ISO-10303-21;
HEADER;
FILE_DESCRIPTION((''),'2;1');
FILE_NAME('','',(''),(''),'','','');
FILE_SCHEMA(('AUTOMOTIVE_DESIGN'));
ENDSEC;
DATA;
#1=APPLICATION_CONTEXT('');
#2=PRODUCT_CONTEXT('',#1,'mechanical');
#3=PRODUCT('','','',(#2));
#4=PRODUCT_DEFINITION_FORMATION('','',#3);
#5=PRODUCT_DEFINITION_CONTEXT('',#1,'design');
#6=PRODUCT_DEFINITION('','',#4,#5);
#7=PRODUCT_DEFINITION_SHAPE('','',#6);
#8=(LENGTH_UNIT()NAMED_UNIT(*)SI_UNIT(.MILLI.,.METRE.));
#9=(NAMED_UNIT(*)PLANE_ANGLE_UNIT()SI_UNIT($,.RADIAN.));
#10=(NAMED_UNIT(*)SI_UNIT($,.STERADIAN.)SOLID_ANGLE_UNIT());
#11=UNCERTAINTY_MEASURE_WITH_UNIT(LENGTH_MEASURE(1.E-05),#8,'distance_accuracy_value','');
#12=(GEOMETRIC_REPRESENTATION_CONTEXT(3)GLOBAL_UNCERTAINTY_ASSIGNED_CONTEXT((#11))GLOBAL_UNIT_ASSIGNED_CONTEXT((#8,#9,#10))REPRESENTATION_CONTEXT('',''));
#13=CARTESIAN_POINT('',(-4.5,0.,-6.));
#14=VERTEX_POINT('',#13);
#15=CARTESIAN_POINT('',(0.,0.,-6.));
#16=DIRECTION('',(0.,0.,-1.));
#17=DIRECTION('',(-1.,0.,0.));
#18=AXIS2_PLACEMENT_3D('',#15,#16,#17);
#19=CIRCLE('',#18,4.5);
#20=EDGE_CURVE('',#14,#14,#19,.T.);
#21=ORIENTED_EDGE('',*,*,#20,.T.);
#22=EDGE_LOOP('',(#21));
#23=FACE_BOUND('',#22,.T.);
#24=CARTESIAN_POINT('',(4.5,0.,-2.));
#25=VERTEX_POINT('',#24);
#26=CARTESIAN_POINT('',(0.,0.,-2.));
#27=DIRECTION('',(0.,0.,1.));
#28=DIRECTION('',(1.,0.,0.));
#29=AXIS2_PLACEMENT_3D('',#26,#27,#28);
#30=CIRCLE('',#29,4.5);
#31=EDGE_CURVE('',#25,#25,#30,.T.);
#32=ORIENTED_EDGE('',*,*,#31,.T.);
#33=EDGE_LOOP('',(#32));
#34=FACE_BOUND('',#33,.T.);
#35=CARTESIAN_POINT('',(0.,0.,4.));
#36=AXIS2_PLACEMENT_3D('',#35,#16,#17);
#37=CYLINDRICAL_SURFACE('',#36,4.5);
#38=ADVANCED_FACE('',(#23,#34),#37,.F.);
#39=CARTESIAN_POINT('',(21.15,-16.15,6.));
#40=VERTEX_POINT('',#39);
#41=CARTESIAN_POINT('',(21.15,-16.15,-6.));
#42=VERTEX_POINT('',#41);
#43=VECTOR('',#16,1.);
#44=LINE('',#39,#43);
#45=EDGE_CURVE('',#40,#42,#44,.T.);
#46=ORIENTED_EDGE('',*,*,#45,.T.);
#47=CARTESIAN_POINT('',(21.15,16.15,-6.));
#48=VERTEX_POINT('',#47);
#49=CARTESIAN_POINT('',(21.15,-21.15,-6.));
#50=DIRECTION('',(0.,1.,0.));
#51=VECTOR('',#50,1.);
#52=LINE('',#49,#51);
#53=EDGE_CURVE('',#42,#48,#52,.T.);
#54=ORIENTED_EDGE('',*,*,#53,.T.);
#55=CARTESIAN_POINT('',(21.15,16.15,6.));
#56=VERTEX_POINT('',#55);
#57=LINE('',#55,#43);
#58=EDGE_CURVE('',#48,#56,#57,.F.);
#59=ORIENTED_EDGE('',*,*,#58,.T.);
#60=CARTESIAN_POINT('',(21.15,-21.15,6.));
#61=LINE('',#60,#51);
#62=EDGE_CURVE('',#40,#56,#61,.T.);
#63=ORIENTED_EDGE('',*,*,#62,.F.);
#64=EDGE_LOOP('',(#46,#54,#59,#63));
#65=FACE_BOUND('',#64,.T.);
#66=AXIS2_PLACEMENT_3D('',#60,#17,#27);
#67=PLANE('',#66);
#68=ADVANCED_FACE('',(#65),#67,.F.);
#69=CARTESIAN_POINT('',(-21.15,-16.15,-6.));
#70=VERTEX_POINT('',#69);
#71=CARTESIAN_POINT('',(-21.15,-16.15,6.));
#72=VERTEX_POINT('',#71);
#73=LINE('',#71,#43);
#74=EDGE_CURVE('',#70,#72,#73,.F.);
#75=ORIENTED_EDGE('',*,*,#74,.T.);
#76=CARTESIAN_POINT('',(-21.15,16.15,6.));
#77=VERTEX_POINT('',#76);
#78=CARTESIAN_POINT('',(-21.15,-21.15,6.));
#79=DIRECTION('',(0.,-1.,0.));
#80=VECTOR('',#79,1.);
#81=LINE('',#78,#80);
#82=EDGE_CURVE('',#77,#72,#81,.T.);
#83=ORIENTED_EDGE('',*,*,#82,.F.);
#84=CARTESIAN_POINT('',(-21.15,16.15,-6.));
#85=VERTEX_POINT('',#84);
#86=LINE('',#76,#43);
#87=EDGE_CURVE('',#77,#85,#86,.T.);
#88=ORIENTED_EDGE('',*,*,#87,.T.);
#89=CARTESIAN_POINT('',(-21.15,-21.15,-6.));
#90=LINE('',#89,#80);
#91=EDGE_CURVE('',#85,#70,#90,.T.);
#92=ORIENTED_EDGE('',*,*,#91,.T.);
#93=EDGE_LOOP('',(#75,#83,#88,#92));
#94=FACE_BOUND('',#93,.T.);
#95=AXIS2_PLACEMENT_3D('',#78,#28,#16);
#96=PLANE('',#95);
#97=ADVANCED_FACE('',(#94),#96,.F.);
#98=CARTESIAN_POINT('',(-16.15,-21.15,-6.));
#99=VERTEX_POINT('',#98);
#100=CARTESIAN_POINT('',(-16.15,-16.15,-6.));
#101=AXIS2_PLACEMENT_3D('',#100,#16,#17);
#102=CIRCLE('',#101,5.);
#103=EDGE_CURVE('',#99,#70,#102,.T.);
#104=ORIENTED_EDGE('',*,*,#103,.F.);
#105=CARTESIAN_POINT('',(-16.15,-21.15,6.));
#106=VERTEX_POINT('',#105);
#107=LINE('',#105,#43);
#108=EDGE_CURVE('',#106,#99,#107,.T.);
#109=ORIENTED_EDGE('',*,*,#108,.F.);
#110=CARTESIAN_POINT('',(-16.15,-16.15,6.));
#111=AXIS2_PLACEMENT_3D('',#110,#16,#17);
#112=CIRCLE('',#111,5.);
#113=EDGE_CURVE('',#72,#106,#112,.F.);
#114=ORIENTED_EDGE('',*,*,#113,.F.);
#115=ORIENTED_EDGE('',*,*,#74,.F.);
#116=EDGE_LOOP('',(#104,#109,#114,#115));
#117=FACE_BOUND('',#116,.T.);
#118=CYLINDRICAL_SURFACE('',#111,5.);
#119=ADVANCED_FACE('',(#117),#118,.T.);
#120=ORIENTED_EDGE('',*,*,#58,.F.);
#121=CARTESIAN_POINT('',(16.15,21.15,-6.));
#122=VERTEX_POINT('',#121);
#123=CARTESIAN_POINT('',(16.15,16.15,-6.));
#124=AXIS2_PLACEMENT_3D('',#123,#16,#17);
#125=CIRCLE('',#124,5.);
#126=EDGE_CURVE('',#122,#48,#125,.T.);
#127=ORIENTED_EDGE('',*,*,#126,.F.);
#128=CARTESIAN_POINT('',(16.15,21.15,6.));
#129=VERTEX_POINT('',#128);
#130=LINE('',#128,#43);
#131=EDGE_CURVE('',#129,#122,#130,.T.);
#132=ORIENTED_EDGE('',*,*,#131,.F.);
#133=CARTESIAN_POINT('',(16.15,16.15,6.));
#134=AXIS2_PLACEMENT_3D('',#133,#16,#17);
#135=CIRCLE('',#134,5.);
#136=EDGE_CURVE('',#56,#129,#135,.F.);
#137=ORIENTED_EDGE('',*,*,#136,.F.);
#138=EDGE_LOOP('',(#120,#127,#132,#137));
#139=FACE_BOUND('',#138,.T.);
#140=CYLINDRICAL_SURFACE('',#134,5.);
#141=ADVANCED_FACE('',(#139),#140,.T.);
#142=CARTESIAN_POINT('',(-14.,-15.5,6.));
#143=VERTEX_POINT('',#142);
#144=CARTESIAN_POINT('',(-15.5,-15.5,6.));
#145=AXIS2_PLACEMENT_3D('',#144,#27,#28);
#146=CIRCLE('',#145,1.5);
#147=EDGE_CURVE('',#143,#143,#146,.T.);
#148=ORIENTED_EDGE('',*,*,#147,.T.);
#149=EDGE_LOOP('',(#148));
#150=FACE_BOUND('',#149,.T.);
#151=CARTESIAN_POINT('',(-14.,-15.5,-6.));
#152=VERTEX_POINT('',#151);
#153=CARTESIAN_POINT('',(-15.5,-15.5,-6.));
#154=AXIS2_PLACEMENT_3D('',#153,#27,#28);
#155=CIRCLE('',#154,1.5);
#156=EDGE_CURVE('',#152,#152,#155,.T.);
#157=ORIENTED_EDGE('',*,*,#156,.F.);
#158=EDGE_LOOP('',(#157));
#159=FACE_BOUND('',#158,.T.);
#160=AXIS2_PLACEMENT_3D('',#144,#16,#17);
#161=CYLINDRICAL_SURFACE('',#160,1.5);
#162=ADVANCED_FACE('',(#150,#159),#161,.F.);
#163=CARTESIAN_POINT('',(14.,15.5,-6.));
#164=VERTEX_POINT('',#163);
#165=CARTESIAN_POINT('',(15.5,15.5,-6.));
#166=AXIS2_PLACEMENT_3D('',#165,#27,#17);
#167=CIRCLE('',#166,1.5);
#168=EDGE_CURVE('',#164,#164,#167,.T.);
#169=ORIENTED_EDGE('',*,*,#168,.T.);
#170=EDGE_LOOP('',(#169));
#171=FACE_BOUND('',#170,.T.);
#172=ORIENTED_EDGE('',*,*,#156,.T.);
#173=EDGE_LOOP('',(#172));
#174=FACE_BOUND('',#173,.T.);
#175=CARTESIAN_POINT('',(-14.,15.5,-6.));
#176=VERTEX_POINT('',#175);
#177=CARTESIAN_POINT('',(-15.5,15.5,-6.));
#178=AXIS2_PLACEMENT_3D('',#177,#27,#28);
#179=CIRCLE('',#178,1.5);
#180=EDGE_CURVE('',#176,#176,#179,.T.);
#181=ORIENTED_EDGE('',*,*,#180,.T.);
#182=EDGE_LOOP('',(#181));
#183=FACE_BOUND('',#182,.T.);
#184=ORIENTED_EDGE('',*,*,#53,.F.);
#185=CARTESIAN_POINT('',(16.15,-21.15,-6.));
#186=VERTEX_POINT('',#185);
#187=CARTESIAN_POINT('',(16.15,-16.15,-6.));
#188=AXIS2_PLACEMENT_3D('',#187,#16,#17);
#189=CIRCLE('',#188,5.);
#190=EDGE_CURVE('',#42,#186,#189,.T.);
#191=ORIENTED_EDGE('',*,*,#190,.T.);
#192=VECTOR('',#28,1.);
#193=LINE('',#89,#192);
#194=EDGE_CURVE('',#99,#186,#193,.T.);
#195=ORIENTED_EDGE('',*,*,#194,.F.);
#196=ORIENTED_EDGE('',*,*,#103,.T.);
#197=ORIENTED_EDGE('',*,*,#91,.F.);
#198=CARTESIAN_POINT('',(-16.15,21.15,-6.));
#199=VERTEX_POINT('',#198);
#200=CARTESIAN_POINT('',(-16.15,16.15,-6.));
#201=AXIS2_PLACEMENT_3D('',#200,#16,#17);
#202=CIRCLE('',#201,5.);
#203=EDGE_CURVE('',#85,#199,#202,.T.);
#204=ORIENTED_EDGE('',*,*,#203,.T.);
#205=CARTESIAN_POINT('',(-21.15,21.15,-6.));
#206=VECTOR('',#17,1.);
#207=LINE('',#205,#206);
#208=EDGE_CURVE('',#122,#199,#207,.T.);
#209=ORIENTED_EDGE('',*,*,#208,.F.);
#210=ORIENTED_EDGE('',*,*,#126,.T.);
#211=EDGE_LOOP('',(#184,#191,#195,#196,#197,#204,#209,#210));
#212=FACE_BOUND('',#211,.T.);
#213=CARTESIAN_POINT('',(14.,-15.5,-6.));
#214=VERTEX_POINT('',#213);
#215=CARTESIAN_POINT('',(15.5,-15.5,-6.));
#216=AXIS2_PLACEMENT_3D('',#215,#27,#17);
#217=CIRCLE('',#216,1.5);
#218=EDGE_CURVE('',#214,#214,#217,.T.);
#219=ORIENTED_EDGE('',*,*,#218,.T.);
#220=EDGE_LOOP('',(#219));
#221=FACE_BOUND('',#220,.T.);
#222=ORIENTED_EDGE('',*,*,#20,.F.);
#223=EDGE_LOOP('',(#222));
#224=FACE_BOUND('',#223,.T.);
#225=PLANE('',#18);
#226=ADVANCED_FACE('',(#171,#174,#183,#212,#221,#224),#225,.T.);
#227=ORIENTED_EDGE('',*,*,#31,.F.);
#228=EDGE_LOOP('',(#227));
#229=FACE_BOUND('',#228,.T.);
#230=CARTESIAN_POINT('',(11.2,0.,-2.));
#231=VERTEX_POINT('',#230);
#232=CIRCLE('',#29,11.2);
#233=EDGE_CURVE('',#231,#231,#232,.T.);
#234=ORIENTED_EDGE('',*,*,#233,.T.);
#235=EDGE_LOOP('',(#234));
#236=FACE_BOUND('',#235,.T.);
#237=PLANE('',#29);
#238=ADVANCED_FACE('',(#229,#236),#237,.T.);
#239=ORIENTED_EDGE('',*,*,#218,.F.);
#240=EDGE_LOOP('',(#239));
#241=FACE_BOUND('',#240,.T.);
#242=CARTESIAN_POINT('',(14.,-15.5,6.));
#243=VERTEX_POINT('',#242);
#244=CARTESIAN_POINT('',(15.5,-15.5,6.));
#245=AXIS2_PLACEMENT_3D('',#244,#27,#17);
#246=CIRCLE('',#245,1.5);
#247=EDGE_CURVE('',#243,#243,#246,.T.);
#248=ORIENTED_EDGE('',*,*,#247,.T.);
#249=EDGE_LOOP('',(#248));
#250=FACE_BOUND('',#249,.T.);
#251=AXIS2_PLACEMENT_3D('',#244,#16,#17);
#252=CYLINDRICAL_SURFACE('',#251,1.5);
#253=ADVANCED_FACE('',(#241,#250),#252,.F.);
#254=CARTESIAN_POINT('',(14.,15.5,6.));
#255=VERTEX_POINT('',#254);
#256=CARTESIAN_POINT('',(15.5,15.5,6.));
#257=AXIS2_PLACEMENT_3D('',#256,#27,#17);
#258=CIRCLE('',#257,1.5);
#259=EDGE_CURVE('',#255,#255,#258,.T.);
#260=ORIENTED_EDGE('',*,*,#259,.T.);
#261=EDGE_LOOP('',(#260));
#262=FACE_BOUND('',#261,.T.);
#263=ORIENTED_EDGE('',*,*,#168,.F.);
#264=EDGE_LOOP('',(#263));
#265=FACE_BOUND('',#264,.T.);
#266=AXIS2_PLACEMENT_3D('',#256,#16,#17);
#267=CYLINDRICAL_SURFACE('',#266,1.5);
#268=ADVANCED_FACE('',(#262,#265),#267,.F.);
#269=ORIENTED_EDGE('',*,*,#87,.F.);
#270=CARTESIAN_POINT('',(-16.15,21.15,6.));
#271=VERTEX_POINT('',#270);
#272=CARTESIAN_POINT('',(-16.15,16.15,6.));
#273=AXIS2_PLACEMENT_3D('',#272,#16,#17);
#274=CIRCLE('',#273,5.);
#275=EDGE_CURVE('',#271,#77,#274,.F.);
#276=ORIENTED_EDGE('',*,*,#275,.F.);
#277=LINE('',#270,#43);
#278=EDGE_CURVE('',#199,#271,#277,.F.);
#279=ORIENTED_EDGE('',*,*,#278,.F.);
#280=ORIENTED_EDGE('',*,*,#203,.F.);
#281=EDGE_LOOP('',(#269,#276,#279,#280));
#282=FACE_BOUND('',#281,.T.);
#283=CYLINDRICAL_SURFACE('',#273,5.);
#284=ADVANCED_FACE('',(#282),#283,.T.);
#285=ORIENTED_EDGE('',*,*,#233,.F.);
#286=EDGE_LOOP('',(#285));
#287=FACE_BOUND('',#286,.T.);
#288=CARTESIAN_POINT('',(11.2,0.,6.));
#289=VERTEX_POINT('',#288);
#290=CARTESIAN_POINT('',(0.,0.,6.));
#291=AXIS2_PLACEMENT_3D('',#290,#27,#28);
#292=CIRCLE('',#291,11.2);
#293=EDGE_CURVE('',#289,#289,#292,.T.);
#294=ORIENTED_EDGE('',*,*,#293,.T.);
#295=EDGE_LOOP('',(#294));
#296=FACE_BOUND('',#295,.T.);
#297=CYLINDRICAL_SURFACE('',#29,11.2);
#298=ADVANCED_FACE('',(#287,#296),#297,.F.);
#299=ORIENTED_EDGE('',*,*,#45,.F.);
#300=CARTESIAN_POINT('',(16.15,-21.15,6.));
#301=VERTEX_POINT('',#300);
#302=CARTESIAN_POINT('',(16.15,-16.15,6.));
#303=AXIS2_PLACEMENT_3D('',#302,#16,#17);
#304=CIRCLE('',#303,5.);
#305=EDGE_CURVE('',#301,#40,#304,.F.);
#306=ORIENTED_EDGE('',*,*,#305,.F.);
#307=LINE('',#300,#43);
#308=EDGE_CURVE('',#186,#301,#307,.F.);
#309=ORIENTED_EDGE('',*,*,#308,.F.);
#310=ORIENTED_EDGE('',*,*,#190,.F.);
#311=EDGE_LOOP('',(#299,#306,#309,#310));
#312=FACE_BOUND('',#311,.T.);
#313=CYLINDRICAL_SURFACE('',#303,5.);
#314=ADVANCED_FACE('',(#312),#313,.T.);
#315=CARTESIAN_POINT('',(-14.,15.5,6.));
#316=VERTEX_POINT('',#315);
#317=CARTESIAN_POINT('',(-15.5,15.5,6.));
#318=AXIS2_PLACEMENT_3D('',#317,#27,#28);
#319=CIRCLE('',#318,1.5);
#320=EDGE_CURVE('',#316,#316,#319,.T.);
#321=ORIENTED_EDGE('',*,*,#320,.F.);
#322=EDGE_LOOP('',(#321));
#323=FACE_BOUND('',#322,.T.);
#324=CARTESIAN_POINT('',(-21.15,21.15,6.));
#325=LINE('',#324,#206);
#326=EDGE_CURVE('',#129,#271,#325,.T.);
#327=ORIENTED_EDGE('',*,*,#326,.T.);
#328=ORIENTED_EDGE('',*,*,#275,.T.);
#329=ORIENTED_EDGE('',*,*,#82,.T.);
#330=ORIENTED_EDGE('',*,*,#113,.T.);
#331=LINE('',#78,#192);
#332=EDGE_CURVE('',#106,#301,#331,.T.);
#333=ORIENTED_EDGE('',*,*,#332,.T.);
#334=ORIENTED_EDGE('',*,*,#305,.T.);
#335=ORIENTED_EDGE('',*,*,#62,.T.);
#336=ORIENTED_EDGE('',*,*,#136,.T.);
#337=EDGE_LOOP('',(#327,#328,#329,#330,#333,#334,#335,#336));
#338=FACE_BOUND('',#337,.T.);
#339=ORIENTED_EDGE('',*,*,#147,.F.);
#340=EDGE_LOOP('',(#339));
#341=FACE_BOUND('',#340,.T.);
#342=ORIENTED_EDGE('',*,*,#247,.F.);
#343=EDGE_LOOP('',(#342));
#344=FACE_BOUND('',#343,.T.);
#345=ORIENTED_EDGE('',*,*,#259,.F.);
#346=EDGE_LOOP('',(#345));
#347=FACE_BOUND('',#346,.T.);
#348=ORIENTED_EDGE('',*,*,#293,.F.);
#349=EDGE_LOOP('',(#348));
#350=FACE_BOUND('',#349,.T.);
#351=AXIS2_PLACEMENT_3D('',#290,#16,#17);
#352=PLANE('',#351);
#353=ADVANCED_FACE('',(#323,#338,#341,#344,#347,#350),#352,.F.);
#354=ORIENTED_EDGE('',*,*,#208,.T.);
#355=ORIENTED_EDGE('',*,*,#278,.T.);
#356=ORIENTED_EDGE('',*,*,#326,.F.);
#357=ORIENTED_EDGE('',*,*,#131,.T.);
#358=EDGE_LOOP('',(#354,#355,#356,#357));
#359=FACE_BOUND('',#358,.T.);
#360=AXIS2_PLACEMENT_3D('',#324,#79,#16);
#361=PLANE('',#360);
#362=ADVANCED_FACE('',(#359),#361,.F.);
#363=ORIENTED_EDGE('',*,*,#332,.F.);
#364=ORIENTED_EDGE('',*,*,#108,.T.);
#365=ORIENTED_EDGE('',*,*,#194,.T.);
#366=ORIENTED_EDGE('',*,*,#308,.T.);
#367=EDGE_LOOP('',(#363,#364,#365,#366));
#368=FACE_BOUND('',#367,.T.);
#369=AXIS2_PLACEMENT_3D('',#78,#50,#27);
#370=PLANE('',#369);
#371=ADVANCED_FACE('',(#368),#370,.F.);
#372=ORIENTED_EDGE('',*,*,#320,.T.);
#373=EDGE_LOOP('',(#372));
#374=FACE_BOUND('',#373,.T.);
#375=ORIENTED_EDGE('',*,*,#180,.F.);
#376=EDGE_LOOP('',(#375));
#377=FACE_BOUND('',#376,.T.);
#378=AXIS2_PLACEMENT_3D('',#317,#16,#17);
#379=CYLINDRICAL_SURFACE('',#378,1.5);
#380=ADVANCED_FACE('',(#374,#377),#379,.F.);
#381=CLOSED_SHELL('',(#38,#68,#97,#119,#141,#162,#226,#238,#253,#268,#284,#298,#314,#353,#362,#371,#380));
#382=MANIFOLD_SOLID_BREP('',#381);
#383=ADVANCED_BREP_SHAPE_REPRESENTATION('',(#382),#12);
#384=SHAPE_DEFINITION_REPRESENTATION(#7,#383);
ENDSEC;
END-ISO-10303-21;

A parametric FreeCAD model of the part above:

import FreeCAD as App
import Part
import Sketcher

V = App.Vector


def edges_at(feature, points):
    """Names of the edges that pass closest to the given points."""
    edges = feature.Shape.Edges
    near = lambda p: min(range(len(edges)), key=lambda i: edges[i].distToShape(Part.Vertex(*p))[0])
    return sorted({f"Edge{near(p) + 1}" for p in points})


def add_polygon(sketch, points):
    """Adds a closed chain of lines whose ends are joined by coincident constraints."""
    first, n = sketch.GeometryCount, len(points)
    for a, b in zip(points, points[1:] + points[:1]):
        sketch.addGeometry(Part.LineSegment(App.Vector(*a, 0), App.Vector(*b, 0)), False)
    for i in range(n):
        sketch.addConstraint(Sketcher.Constraint("Coincident", first + i, 2, first + (i + 1) % n, 1))

doc = App.newDocument("Part")
body = doc.addObject("PartDesign::Body", "Body")

sketch1 = body.newObject("Sketcher::SketchObject", "Sketch")
sketch1.AttachmentSupport = (doc.getObject("XY_Plane"), [""])
sketch1.MapMode = "FlatFace"
add_polygon(sketch1, [(-21.15, 21.15), (-21.15, -21.15), (21.15, -21.15), (21.15, 21.15)])
sketch1.addGeometry(Part.Circle(V(-15.5, -15.5, 0), V(0, 0, 1), 1.5), False)
sketch1.addGeometry(Part.Circle(V(15.5, -15.5, 0), V(0, 0, 1), 1.5), False)
sketch1.addGeometry(Part.Circle(V(-15.5, 15.5, 0), V(0, 0, 1), 1.5), False)
sketch1.addGeometry(Part.Circle(V(15.5, 15.5, 0), V(0, 0, 1), 1.5), False)
sketch1.addConstraint(Sketcher.Constraint("Vertical", 0))
sketch1.addConstraint(Sketcher.Constraint("Horizontal", 1))
sketch1.addConstraint(Sketcher.Constraint("Vertical", 2))
sketch1.addConstraint(Sketcher.Constraint("Horizontal", 3))
sketch1.addConstraint(Sketcher.Constraint("Equal", 4, 5))
sketch1.addConstraint(Sketcher.Constraint("Equal", 5, 6))
sketch1.addConstraint(Sketcher.Constraint("Equal", 6, 7))
sketch1.addConstraint(Sketcher.Constraint("Symmetric", 5, 3, 6, 3, -1, 1))
sketch1.addConstraint(Sketcher.Constraint("Symmetric", 4, 3, 7, 3, -1, 1))
sketch1.addConstraint(Sketcher.Constraint("Symmetric", 0, 2, 2, 2, -1, 1))
sketch1.addConstraint(Sketcher.Constraint("Symmetric", 4, 3, 5, 3, -2))
sketch1.addConstraint(Sketcher.Constraint("Equal", 3, 0))
sketch1.addConstraint(Sketcher.Constraint("Diameter", 4, 3.0))
sketch1.addConstraint(Sketcher.Constraint("DistanceX", 1, 1, 1, 2, 42.3))
sketch1.addConstraint(Sketcher.Constraint("DistanceX", 4, 3, 5, 3, 31.0))
sketch1.addConstraint(Sketcher.Constraint("DistanceY", 4, 3, 6, 3, 31.0))
pad1 = body.newObject("PartDesign::Pad", "Pad")
pad1.Profile = sketch1
pad1.Length = 12
pad1.Midplane = True
doc.recompute()

fillet = body.newObject("PartDesign::Fillet", "Fillet")
fillet.Base = (pad1, edges_at(pad1, [
    (21.15, -21.15, 0),
    (-21.15, -21.15, 0),
    (-21.15, 21.15, 0),
    (21.15, 21.15, 0),
]))
fillet.Radius = 5

sketch2 = body.newObject("Sketcher::SketchObject", "Sketch001")
sketch2.AttachmentSupport = (doc.getObject("XY_Plane"), [""])
sketch2.MapMode = "FlatFace"
sketch2.AttachmentOffset = App.Placement(V(0, 0, 6), App.Rotation())
sketch2.addGeometry(Part.Circle(V(0, 0, 0), V(0, 0, 1), 11.2), False)
sketch2.addConstraint(Sketcher.Constraint("Coincident", 0, 3, -1, 1))
sketch2.addConstraint(Sketcher.Constraint("Diameter", 0, 22.4))
pocket1 = body.newObject("PartDesign::Pocket", "Pocket")
pocket1.Profile = sketch2
pocket1.Length = 8

sketch3 = body.newObject("Sketcher::SketchObject", "Sketch002")
sketch3.AttachmentSupport = (doc.getObject("XY_Plane"), [""])
sketch3.MapMode = "FlatFace"
sketch3.AttachmentOffset = App.Placement(V(0, 0, -6), App.Rotation())
sketch3.addGeometry(Part.Circle(V(0, 0, 0), V(0, 0, 1), 4.5), False)
sketch3.addConstraint(Sketcher.Constraint("Coincident", 0, 3, -1, 1))
sketch3.addConstraint(Sketcher.Constraint("Diameter", 0, 9.0))
pocket2 = body.newObject("PartDesign::Pocket", "Pocket001")
pocket2.Profile = sketch3
pocket2.Length = 10
pocket2.Reversed = True

doc.recompute()
